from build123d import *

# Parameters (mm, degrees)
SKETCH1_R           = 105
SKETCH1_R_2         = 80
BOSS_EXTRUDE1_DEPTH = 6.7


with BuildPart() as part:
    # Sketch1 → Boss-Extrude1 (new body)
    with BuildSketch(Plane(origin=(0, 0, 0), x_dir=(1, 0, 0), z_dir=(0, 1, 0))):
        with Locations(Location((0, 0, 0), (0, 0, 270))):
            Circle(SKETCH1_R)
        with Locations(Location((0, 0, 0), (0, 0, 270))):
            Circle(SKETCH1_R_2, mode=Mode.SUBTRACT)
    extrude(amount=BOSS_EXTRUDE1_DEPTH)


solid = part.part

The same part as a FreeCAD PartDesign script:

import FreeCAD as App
import Part
import Sketcher

V = App.Vector

doc = App.newDocument("Part")
params = doc.addObject("Spreadsheet::Sheet", "Params")
for row, (alias, value) in enumerate([
    ("sketch1_diameter", "210 mm"),
    ("sketch1_diameter2", "160 mm"),
    ("pad1_length", "6.7 mm"),
], start=1):
    params.set(f"A{row}", alias)
    params.set(f"B{row}", "=" + value)
    params.setAlias(f"B{row}", alias)

body = doc.addObject("PartDesign::Body", "Body")

# Sketch on XZ plane
sketch1 = doc.addObject("Sketcher::SketchObject", "Sketch")
body.addObject(sketch1)
sketch1.AttachmentSupport = (doc.XZ_Plane, [""])
sketch1.MapMode = "FlatFace"
sketch1.addGeometry([
    Part.Circle(V(0, 0, 0), V(0, 0, 1), 105),
    Part.Circle(V(0, 0, 0), V(0, 0, 1), 80),
], False)
sketch1.addConstraint([
    Sketcher.Constraint("Coincident", 0, 3, -1, 1),
    Sketcher.Constraint("Coincident", 1, 3, -1, 1),
    Sketcher.Constraint("Diameter", 0, 210.0),
    Sketcher.Constraint("Diameter", 1, 160.0),
])
sketch1.setExpression("Constraints[2]", "Params.sketch1_diameter")
sketch1.setExpression("Constraints[3]", "Params.sketch1_diameter2")
pad1 = doc.addObject("PartDesign::Pad", "Pad")
body.addObject(pad1)
pad1.Profile = sketch1
pad1.setExpression("Length", "Params.pad1_length")
pad1.Reversed = True

doc.recompute()
